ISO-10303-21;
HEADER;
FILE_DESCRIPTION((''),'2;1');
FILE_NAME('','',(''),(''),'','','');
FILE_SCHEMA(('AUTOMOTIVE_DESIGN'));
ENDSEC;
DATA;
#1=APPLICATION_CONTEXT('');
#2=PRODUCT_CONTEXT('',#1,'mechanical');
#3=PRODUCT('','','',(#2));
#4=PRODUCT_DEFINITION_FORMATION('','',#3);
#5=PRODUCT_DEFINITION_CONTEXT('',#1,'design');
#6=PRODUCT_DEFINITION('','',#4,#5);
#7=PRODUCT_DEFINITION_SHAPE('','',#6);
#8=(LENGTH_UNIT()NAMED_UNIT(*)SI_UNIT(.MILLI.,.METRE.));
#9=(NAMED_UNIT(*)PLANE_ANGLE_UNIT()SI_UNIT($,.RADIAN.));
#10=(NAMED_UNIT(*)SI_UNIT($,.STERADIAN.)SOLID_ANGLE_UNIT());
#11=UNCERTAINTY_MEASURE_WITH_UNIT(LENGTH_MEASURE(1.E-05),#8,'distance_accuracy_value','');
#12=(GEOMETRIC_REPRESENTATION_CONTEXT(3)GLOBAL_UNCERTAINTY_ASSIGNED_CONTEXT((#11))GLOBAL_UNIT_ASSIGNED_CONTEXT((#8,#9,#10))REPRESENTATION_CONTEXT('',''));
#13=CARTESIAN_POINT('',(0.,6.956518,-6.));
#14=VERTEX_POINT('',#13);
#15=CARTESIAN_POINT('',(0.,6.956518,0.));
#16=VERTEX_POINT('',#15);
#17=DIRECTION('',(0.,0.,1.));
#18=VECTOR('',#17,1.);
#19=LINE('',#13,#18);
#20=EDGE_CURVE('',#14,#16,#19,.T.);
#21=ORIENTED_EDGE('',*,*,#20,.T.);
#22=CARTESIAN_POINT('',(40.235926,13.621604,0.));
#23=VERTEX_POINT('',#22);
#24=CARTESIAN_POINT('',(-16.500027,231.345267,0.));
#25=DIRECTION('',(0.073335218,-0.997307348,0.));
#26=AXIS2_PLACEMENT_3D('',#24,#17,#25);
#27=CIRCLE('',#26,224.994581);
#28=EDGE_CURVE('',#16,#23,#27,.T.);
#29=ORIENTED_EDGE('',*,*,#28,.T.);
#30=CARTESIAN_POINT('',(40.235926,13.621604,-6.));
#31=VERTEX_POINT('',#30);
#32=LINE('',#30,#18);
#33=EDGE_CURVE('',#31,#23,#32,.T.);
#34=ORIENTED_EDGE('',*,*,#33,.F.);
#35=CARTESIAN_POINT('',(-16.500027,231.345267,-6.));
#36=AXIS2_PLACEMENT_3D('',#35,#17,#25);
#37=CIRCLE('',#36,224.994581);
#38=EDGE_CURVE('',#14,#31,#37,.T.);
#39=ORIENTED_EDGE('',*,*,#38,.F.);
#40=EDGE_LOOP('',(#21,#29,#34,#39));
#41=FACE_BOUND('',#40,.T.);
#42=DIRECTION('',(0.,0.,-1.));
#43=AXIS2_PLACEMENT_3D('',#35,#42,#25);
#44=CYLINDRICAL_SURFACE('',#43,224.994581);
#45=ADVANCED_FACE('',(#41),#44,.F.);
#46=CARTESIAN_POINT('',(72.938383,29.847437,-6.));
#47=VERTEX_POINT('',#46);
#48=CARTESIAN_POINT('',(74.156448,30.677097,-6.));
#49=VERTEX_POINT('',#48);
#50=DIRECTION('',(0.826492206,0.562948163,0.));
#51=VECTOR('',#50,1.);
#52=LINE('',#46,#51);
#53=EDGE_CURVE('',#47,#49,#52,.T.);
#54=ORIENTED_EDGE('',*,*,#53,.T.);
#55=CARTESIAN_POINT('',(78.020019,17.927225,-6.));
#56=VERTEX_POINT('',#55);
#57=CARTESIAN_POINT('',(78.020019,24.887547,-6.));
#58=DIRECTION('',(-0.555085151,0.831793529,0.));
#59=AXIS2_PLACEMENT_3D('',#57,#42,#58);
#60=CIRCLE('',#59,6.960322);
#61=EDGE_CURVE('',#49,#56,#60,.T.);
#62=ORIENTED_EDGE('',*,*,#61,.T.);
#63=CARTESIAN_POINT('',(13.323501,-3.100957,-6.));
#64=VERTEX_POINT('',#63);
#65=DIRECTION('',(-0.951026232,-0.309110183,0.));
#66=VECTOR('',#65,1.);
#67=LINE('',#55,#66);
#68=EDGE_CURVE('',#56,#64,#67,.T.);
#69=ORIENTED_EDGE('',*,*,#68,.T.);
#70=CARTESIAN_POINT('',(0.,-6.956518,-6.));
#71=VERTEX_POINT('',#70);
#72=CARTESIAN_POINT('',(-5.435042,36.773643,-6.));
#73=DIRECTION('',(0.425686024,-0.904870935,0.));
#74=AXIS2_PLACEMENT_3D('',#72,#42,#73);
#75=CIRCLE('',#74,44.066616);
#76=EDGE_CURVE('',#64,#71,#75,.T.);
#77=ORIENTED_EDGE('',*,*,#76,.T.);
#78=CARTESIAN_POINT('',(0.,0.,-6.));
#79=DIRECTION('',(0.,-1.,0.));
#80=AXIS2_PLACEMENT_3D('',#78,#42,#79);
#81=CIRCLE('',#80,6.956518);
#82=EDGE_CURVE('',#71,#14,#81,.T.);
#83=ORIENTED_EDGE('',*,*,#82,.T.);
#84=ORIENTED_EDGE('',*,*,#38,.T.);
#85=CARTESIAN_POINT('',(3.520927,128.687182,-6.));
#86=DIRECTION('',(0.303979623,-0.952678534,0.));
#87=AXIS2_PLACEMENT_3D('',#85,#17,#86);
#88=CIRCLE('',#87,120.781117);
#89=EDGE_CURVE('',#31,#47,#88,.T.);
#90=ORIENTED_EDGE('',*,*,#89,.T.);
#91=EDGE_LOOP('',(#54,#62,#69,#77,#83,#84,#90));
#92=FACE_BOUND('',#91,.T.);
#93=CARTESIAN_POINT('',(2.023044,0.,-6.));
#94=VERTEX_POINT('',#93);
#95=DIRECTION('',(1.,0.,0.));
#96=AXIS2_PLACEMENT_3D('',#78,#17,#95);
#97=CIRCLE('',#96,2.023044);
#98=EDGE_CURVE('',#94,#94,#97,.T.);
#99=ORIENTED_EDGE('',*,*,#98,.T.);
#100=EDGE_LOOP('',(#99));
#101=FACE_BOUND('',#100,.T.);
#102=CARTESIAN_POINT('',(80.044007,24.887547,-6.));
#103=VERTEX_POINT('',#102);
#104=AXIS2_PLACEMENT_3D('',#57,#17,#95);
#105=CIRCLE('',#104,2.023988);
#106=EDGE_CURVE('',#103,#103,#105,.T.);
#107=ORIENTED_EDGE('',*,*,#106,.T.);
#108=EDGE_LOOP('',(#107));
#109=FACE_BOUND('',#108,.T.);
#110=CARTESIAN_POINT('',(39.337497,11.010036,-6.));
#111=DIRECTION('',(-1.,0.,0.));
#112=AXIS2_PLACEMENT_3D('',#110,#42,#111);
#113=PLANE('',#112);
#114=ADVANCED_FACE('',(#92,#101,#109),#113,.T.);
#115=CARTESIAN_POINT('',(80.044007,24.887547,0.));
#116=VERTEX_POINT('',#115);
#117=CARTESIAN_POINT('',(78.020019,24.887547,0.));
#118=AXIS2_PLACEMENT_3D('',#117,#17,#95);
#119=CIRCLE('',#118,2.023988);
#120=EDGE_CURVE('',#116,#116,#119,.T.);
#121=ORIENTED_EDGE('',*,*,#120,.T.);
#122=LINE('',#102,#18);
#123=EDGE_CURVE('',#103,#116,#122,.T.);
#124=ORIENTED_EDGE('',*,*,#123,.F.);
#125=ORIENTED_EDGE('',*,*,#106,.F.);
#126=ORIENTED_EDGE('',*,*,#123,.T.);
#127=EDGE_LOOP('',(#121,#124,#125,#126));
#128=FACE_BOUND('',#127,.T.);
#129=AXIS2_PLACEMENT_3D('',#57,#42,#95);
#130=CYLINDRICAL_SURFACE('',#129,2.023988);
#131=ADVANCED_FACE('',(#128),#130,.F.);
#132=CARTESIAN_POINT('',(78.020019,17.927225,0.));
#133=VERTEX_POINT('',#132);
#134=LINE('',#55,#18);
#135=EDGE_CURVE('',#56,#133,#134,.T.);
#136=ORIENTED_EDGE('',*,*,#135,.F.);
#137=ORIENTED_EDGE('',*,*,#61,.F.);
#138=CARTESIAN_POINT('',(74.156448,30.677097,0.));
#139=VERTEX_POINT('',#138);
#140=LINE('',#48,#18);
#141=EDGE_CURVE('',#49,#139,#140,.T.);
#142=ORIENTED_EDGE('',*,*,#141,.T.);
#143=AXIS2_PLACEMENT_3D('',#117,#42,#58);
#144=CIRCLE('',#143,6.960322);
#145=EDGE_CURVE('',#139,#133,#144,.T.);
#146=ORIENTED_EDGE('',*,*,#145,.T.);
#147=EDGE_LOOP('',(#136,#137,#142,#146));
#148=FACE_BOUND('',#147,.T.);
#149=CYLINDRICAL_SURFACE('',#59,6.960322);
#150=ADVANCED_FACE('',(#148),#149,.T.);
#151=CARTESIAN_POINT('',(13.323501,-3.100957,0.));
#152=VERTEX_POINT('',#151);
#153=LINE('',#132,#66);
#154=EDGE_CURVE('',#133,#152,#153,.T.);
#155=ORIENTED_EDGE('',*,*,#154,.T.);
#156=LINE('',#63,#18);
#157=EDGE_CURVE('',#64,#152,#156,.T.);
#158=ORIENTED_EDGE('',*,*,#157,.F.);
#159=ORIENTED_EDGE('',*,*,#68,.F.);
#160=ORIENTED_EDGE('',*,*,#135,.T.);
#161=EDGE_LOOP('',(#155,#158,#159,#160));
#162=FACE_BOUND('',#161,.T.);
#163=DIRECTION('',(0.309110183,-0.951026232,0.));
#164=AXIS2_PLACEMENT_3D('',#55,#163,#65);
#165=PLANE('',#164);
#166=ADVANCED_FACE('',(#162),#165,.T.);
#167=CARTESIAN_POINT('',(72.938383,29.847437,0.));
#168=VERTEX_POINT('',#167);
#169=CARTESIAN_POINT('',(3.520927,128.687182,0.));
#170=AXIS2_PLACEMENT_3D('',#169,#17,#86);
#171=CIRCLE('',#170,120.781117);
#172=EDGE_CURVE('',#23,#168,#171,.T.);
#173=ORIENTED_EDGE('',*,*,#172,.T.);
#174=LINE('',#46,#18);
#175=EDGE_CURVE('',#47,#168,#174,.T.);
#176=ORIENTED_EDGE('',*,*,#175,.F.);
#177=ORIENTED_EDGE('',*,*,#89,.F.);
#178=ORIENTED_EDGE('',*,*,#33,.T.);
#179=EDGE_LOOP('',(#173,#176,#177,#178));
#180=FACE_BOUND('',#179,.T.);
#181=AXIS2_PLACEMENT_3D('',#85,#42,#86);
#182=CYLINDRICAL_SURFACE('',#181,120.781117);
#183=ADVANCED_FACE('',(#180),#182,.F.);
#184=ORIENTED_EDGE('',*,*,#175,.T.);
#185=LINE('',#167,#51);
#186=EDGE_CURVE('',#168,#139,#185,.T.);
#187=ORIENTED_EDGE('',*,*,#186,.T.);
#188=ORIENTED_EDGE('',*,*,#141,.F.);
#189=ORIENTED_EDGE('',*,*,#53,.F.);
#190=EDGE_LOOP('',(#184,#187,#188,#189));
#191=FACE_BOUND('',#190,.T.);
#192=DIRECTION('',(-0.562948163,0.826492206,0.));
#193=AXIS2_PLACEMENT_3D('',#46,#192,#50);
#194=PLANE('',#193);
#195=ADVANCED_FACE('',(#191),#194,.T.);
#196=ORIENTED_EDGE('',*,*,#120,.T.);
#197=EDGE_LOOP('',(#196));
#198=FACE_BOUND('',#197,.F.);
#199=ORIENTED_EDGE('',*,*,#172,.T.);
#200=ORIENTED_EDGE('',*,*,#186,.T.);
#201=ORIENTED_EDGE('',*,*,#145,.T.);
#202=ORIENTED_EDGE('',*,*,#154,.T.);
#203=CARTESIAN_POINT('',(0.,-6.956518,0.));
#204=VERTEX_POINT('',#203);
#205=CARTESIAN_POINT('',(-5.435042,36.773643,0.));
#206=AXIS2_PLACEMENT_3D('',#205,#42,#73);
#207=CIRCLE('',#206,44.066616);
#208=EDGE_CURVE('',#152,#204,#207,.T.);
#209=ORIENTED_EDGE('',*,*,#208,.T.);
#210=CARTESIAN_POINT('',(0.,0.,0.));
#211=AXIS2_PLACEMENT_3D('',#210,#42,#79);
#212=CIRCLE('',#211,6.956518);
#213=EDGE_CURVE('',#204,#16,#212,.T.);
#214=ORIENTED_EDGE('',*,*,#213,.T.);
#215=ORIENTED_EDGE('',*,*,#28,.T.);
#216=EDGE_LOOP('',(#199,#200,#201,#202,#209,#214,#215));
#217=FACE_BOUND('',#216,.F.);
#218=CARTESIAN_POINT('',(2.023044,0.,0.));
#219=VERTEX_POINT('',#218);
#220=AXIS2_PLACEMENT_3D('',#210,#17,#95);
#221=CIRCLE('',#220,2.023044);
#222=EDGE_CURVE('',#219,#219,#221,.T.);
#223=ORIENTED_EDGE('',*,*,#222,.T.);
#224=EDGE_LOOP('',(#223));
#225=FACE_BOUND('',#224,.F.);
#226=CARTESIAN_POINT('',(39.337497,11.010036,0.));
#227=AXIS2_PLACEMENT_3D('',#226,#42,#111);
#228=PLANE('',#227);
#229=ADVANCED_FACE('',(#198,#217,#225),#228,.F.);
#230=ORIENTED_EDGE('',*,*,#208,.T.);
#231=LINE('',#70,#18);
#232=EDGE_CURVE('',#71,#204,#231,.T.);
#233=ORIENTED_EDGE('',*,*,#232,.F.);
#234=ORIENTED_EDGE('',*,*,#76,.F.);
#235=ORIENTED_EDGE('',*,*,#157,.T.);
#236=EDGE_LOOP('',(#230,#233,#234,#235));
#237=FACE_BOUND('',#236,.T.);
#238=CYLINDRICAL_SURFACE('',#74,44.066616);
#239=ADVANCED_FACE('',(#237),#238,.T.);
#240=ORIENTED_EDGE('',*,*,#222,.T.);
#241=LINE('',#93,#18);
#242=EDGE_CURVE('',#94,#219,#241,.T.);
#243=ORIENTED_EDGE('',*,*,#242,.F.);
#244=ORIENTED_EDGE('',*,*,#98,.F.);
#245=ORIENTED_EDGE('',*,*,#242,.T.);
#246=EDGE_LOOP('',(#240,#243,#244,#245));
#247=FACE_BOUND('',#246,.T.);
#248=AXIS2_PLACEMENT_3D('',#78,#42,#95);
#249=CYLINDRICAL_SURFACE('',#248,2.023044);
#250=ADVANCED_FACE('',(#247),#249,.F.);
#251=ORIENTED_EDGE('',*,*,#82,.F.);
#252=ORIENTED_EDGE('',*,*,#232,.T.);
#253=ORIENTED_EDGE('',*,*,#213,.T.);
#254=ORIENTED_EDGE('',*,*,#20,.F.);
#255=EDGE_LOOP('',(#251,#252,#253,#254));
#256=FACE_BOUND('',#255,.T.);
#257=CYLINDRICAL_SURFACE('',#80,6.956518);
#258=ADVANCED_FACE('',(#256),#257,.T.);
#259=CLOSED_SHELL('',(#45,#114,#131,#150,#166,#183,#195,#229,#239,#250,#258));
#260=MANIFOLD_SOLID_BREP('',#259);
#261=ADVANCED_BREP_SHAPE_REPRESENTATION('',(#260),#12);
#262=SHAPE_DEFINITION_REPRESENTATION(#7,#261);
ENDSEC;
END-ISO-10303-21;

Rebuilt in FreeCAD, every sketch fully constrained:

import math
import FreeCAD as App
import Part
import Sketcher
from FreeCAD import Vector
Q = App.Units.Quantity

doc = App.newDocument("Part")
body = doc.addObject("PartDesign::Body", "Body")

sketch1 = body.newObject("Sketcher::SketchObject", "Sketch")
sketch1.AttachmentSupport = (doc.getObject("XY_Plane"), [""])
sketch1.MapMode = "FlatFace"
sketch1.addGeometry([
    Part.ArcOfCircle(Part.Circle(Vector(3.5, 128.7, 0), Vector(0, 0, 1), 120.8), math.radians(-72.3), math.radians(-54.92)),
    Part.ArcOfCircle(Part.Circle(Vector(-16.5, 231.3, 0), Vector(0, 0, 1), 225), math.radians(-85.79), math.radians(-75.39)),
    Part.ArcOfCircle(Part.Circle(Vector(0, 0, 0), Vector(0, 0, 1), 7), math.radians(90), math.radians(270)),
    Part.ArcOfCircle(Part.Circle(Vector(-5.4, 36.8, 0), Vector(0, 0, 1), 44.1), math.radians(-82.92), math.radians(-64.81)),
    Part.LineSegment(Vector(13.3, -3.1, 0), Vector(78, 17.9, 0)),
    Part.ArcOfCircle(Part.Circle(Vector(78, 24.9, 0), Vector(0, 0, 1), 7), math.radians(-90), math.radians(124)),
    Part.LineSegment(Vector(74.2, 30.7, 0), Vector(72.9, 29.8, 0)),
    Part.Circle(Vector(0, 0, 0), Vector(0, 0, 1), 2),
    Part.Circle(Vector(78, 24.9, 0), Vector(0, 0, 1), 2),
], False)
sketch1.addConstraint([
    Sketcher.Constraint("Coincident", 0, 1, 1, 2),
    Sketcher.Constraint("Coincident", 1, 1, 2, 1),
    Sketcher.Constraint("Coincident", 2, 2, 3, 1),
    Sketcher.Constraint("Coincident", 3, 2, 4, 1),
    Sketcher.Constraint("Coincident", 4, 2, 5, 1),
    Sketcher.Constraint("Coincident", 5, 2, 6, 1),
    Sketcher.Constraint("Coincident", 6, 2, 0, 2),
    Sketcher.Constraint("Coincident", 2, 3, -1, 1),
    Sketcher.Constraint("Coincident", 7, 3, -1, 1),
    Sketcher.Constraint("Coincident", 8, 3, 5, 3),
    Sketcher.Constraint("PointOnObject", 1, 1, -2),
    Sketcher.Constraint("PointOnObject", 2, 2, -2),
    Sketcher.Constraint("Vertical", 8, 3, 4, 2),
    Sketcher.Constraint("Radius", 1, Q("224.994581 mm")),
    Sketcher.Constraint("Radius", 5, Q("6.960322 mm")),
    Sketcher.Constraint("Diameter", 7, Q("4.046087 mm")),
    Sketcher.Constraint("Diameter", 8, Q("4.047976 mm")),
    Sketcher.Constraint("Radius", 0, Q("120.781117 mm")),
    Sketcher.Constraint("Radius", 2, Q("6.956518 mm")),
    Sketcher.Constraint("Radius", 3, Q("44.066616 mm")),
    Sketcher.Constraint("DistanceX", -1, 1, 3, 2, Q("13.323501 mm")),
    Sketcher.Constraint("Distance", 4, Q("68.028111 mm")),
    Sketcher.Constraint("DistanceY", -1, 1, 0, 3, Q("128.687182 mm")),
    Sketcher.Constraint("DistanceX", 3, 3, -1, 1, Q("5.435042 mm")),
    Sketcher.Constraint("DistanceX", -1, 1, 5, 3, Q("78.020019 mm")),
    Sketcher.Constraint("DistanceX", 3, 3, 0, 3, Q("8.955969 mm")),
    Sketcher.Constraint("DistanceY", 5, 3, 1, 3, Q("206.45772 mm")),
    Sketcher.Constraint("DistanceX", 5, 2, 5, 3, Q("3.863571 mm")),
    Sketcher.Constraint("DistanceY", 6, 2, 5, 2, Q("0.82966 mm")),
])
pad1 = body.newObject("PartDesign::Pad", "Pad")
pad1.Profile = sketch1
pad1.Length = 6
body2 = doc.addObject("PartDesign::Body", "Body001")
doc.recompute()

body.Placement = App.Placement(Vector(0, 0, -6), App.Rotation(Vector(0, 0, 1), 0))
boolean = body2.newObject("PartDesign::Boolean", "Boolean")
boolean.Type = "Fuse"
boolean.addObjects([body])

doc.recompute()
